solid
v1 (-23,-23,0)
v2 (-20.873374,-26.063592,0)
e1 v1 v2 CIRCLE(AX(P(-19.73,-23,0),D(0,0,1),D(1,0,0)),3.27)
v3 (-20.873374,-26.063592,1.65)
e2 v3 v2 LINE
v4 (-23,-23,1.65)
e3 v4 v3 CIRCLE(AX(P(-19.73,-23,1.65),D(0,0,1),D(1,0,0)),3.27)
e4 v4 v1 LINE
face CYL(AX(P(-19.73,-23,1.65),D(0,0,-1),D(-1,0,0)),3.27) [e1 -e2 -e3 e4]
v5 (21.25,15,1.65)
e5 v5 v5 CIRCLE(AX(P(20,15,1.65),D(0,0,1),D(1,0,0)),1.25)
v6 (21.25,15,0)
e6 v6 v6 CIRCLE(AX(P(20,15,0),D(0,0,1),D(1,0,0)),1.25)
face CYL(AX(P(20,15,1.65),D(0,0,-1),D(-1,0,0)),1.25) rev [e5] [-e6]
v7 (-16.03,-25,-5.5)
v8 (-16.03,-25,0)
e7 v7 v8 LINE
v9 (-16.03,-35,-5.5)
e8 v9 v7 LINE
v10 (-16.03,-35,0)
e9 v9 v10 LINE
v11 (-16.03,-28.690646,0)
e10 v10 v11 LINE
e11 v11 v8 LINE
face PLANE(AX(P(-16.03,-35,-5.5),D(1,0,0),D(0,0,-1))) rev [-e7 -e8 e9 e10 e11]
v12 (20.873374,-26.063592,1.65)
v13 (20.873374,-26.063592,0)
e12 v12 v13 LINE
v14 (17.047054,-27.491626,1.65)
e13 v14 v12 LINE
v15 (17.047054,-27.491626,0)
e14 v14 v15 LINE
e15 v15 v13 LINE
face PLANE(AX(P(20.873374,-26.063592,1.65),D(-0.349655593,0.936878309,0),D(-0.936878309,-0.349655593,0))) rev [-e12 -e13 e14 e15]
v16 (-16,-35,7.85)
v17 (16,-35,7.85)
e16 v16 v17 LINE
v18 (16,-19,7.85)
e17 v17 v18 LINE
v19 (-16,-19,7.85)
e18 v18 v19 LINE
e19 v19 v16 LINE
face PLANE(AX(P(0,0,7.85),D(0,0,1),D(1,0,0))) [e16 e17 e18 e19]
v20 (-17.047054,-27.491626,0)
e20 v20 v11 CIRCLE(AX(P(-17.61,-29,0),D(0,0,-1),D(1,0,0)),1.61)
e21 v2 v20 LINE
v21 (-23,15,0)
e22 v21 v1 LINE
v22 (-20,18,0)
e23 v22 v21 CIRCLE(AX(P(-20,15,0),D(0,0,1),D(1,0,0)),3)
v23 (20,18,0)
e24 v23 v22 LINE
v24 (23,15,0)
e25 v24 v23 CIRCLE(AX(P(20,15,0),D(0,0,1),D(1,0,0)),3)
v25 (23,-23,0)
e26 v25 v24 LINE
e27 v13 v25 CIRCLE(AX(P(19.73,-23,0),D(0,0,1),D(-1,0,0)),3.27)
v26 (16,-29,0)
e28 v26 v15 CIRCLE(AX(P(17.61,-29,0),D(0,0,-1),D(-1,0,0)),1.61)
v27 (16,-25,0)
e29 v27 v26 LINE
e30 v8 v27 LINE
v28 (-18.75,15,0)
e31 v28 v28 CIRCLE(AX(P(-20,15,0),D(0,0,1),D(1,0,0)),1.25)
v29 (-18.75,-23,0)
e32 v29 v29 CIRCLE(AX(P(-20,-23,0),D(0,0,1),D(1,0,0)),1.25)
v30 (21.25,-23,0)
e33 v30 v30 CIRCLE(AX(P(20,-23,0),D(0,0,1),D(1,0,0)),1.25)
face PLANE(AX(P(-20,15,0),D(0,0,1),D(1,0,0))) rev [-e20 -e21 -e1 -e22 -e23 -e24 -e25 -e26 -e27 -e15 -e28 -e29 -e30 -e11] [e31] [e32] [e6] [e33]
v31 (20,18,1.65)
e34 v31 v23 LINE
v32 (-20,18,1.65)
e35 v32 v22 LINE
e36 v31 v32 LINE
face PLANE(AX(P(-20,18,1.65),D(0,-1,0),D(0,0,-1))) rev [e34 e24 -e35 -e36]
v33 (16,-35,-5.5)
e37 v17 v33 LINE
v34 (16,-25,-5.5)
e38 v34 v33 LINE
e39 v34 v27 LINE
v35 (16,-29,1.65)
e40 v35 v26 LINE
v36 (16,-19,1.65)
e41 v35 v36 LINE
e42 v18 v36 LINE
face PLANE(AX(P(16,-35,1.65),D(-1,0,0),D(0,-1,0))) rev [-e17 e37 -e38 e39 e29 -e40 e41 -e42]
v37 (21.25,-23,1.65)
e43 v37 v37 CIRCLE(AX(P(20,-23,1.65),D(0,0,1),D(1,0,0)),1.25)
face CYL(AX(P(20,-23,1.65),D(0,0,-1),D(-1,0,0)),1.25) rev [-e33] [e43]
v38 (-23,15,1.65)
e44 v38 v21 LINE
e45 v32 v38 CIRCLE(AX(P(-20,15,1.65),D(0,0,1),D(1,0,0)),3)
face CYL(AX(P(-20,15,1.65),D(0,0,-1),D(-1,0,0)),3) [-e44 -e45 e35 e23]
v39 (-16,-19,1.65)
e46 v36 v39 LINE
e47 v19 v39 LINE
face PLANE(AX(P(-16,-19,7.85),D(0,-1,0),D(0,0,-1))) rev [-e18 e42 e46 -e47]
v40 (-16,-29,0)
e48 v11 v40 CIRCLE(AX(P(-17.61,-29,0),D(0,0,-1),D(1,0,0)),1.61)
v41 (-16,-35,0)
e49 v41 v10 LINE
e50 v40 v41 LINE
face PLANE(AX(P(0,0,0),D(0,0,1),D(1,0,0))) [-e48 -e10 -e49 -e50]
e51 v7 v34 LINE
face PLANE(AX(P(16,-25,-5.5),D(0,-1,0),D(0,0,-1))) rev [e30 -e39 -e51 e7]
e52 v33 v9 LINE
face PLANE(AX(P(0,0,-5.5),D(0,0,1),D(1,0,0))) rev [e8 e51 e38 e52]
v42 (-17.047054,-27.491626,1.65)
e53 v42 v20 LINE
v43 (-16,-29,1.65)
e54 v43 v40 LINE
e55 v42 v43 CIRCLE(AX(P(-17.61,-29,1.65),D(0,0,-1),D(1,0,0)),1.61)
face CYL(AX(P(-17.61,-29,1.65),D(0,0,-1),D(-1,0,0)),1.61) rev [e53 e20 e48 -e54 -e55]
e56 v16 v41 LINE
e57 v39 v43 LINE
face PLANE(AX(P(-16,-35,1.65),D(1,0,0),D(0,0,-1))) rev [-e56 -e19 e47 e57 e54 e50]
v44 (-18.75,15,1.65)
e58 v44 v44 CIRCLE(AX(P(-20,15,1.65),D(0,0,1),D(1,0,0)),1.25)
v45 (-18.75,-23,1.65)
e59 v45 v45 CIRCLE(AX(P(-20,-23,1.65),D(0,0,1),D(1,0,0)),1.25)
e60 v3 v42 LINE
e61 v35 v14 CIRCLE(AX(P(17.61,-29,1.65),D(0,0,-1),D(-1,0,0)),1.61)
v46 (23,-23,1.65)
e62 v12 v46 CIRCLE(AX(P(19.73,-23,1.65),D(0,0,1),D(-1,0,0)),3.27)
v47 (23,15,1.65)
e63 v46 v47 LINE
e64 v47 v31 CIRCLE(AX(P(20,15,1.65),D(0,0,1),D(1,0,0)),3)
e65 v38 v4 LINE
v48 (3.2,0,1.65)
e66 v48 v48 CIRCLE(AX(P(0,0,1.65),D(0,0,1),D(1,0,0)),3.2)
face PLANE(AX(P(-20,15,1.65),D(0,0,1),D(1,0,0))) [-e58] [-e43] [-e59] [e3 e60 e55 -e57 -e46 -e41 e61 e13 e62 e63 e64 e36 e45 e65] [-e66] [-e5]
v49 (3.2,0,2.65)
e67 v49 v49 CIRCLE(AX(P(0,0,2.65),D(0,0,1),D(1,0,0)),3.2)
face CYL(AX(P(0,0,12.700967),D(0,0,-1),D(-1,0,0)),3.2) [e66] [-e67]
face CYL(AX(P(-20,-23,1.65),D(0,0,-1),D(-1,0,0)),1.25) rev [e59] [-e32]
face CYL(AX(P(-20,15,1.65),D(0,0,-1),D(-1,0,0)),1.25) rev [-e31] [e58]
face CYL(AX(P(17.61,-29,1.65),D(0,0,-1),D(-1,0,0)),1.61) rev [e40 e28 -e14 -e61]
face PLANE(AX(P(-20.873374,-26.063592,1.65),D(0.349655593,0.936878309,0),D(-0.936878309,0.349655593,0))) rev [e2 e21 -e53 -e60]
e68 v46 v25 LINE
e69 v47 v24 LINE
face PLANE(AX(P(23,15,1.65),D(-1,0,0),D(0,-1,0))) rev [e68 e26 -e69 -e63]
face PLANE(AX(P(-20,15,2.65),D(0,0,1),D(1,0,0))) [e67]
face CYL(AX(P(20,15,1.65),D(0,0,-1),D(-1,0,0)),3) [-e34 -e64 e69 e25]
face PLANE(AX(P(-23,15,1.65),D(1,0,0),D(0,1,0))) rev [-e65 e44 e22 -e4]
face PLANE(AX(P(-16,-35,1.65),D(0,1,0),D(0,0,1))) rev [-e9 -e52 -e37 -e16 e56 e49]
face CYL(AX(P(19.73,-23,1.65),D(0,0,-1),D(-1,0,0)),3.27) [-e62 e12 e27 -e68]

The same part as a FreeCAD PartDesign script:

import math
import FreeCAD as App
import Part
import Sketcher

doc = App.newDocument("Part")
body = doc.addObject("PartDesign::Body", "Body")

sketch1 = doc.addObject("Sketcher::SketchObject", "Sketch")
body.addObject(sketch1)
sketch1.AttachmentSupport = (doc.XY_Plane, [""])
sketch1.MapMode = "FlatFace"
sketch1.addGeometry(Part.LineSegment(App.Vector(20, 18, 0), App.Vector(-20, 18, 0)), False)
sketch1.addGeometry(Part.ArcOfCircle(Part.Circle(App.Vector(-20, 15, 0), App.Vector(0, 0, 1), 3), math.radians(90), math.radians(180)), False)
sketch1.addGeometry(Part.LineSegment(App.Vector(-23, 15, 0), App.Vector(-23, -23, 0)), False)
sketch1.addGeometry(Part.ArcOfCircle(Part.Circle(App.Vector(-19.7, -23, 0), App.Vector(0, 0, 1), 3.3), math.radians(-180), math.radians(-110)), False)
sketch1.addGeometry(Part.LineSegment(App.Vector(-20.9, -26.1, 0), App.Vector(-17, -27.5, 0)), False)
sketch1.addGeometry(Part.ArcOfCircle(Part.Circle(App.Vector(-17.6, -29, 0), App.Vector(0, 0, 1), 1.6), math.radians(0), math.radians(70)), False)
sketch1.addGeometry(Part.LineSegment(App.Vector(-16, -29, 0), App.Vector(-16, -35, 0)), False)
sketch1.addGeometry(Part.LineSegment(App.Vector(-16, -35, 0), App.Vector(16, -35, 0)), False)
sketch1.addGeometry(Part.LineSegment(App.Vector(16, -35, 0), App.Vector(16, -29, 0)), False)
sketch1.addGeometry(Part.ArcOfCircle(Part.Circle(App.Vector(17.6, -29, 0), App.Vector(0, 0, 1), 1.6), math.radians(110), math.radians(180)), False)
sketch1.addGeometry(Part.LineSegment(App.Vector(17, -27.5, 0), App.Vector(20.9, -26.1, 0)), False)
sketch1.addGeometry(Part.ArcOfCircle(Part.Circle(App.Vector(19.7, -23, 0), App.Vector(0, 0, 1), 3.3), math.radians(-70), math.radians(0)), False)
sketch1.addGeometry(Part.LineSegment(App.Vector(23, -23, 0), App.Vector(23, 15, 0)), False)
sketch1.addGeometry(Part.ArcOfCircle(Part.Circle(App.Vector(20, 15, 0), App.Vector(0, 0, 1), 3), math.radians(0), math.radians(90)), False)
sketch1.addGeometry(Part.Circle(App.Vector(20, -23, 0), App.Vector(0, 0, 1), 1.2), False)
sketch1.addGeometry(Part.Circle(App.Vector(-20, -23, 0), App.Vector(0, 0, 1), 1.2), False)
sketch1.addGeometry(Part.Circle(App.Vector(20, 15, 0), App.Vector(0, 0, 1), 1.2), False)
sketch1.addGeometry(Part.Circle(App.Vector(0, 0, 0), App.Vector(0, 0, 1), 3.2), False)
sketch1.addGeometry(Part.Circle(App.Vector(-20, 15, 0), App.Vector(0, 0, 1), 1.2), False)
sketch1.addConstraint(Sketcher.Constraint("Tangent", 0, 2, 1, 1))
sketch1.addConstraint(Sketcher.Constraint("Tangent", 1, 2, 2, 1))
sketch1.addConstraint(Sketcher.Constraint("Tangent", 2, 2, 3, 1))
sketch1.addConstraint(Sketcher.Constraint("Tangent", 3, 2, 4, 1))
sketch1.addConstraint(Sketcher.Constraint("Tangent", 4, 2, 5, 2))
sketch1.addConstraint(Sketcher.Constraint("Tangent", 5, 1, 6, 1))
sketch1.addConstraint(Sketcher.Constraint("Coincident", 6, 2, 7, 1))
sketch1.addConstraint(Sketcher.Constraint("Coincident", 7, 2, 8, 1))
sketch1.addConstraint(Sketcher.Constraint("Tangent", 8, 2, 9, 2))
sketch1.addConstraint(Sketcher.Constraint("Tangent", 9, 1, 10, 1))
sketch1.addConstraint(Sketcher.Constraint("Tangent", 10, 2, 11, 1))
sketch1.addConstraint(Sketcher.Constraint("Tangent", 11, 2, 12, 1))
sketch1.addConstraint(Sketcher.Constraint("Tangent", 12, 2, 13, 1))
sketch1.addConstraint(Sketcher.Constraint("Tangent", 13, 2, 0, 1))
sketch1.addConstraint(Sketcher.Constraint("Horizontal", 0))
sketch1.addConstraint(Sketcher.Constraint("Vertical", 2))
sketch1.addConstraint(Sketcher.Constraint("Vertical", 6))
sketch1.addConstraint(Sketcher.Constraint("Horizontal", 7))
sketch1.addConstraint(Sketcher.Constraint("Vertical", 8))
sketch1.addConstraint(Sketcher.Constraint("Vertical", 12))
sketch1.addConstraint(Sketcher.Constraint("Coincident", 17, 3, -1, 1))
sketch1.addConstraint(Sketcher.Constraint("Coincident", 16, 3, 13, 3))
sketch1.addConstraint(Sketcher.Constraint("Coincident", 18, 3, 1, 3))
sketch1.addConstraint(Sketcher.Constraint("Equal", 5, 9))
sketch1.addConstraint(Sketcher.Constraint("Equal", 3, 11))
sketch1.addConstraint(Sketcher.Constraint("Equal", 1, 13))
sketch1.addConstraint(Sketcher.Constraint("Equal", 14, 15))
sketch1.addConstraint(Sketcher.Constraint("Equal", 15, 16))
sketch1.addConstraint(Sketcher.Constraint("Equal", 16, 18))
sketch1.addConstraint(Sketcher.Constraint("Symmetric", 5, 3, 9, 3, -2))
sketch1.addConstraint(Sketcher.Constraint("Symmetric", 3, 3, 11, 3, -2))
sketch1.addConstraint(Sketcher.Constraint("Symmetric", 14, 3, 15, 3, -2))
sketch1.addConstraint(Sketcher.Constraint("Horizontal", 11, 3, 14, 3))
sketch1.addConstraint(Sketcher.Constraint("Vertical", 13, 3, 14, 3))
sketch1.addConstraint(Sketcher.Constraint("Radius", 1, 3.0))
sketch1.addConstraint(Sketcher.Constraint("Diameter", 14, 2.5))
sketch1.addConstraint(Sketcher.Constraint("Diameter", 17, 6.4))
sketch1.addConstraint(Sketcher.Constraint("DistanceX", 0, 2, 0, 1, 40.0))
sketch1.addConstraint(Sketcher.Constraint("DistanceX", 7, 1, 7, 2, 32.0))
sketch1.addConstraint(Sketcher.Constraint("DistanceY", 2, 2, 2, 1, 38.0))
sketch1.addConstraint(Sketcher.Constraint("DistanceY", 6, 2, 6, 1, 6.0))
sketch1.addConstraint(Sketcher.Constraint("Radius", 3, 3.27))
sketch1.addConstraint(Sketcher.Constraint("Radius", 5, 1.61))
sketch1.addConstraint(Sketcher.Constraint("DistanceY", -1, 1, 1, 3, 15.0))
sketch1.addConstraint(Sketcher.Constraint("DistanceY", 5, 3, -1, 1, 29.0))
pad1 = doc.addObject("PartDesign::Pad", "Pad")
body.addObject(pad1)
pad1.Profile = sketch1
pad1.Length = 1.65

sketch2 = doc.addObject("Sketcher::SketchObject", "Sketch001")
body.addObject(sketch2)
sketch2.AttachmentSupport = (doc.XY_Plane, [""])
sketch2.MapMode = "FlatFace"
sketch2.AttachmentOffset = App.Placement(App.Vector(0, 0, 1.65), App.Rotation())
sketch2.addGeometry(Part.LineSegment(App.Vector(-16, -19, 0), App.Vector(-16, -35, 0)), False)
sketch2.addGeometry(Part.LineSegment(App.Vector(-16, -35, 0), App.Vector(16, -35, 0)), False)
sketch2.addGeometry(Part.LineSegment(App.Vector(16, -35, 0), App.Vector(16, -19, 0)), False)
sketch2.addGeometry(Part.LineSegment(App.Vector(16, -19, 0), App.Vector(-16, -19, 0)), False)
sketch2.addConstraint(Sketcher.Constraint("Coincident", 0, 2, 1, 1))
sketch2.addConstraint(Sketcher.Constraint("Coincident", 1, 2, 2, 1))
sketch2.addConstraint(Sketcher.Constraint("Coincident", 2, 2, 3, 1))
sketch2.addConstraint(Sketcher.Constraint("Coincident", 3, 2, 0, 1))
sketch2.addConstraint(Sketcher.Constraint("Vertical", 0))
sketch2.addConstraint(Sketcher.Constraint("Horizontal", 1))
sketch2.addConstraint(Sketcher.Constraint("Vertical", 2))
sketch2.addConstraint(Sketcher.Constraint("Horizontal", 3))
sketch2.addConstraint(Sketcher.Constraint("DistanceX", 1, 1, 1, 2, 32.0))
sketch2.addConstraint(Sketcher.Constraint("DistanceY", 0, 2, 0, 1, 16.0))
sketch2.addConstraint(Sketcher.Constraint("DistanceX", 0, 2, -1, 1, 16.0))
sketch2.addConstraint(Sketcher.Constraint("DistanceY", 0, 2, -1, 1, 35.0))
pad2 = doc.addObject("PartDesign::Pad", "Pad001")
body.addObject(pad2)
pad2.Profile = sketch2
pad2.Length = 6.2

sketch3 = doc.addObject("Sketcher::SketchObject", "Sketch002")
body.addObject(sketch3)
sketch3.AttachmentSupport = (doc.XY_Plane, [""])
sketch3.MapMode = "FlatFace"
sketch3.addGeometry(Part.Circle(App.Vector(0, 0, 0), App.Vector(0, 0, 1), 3.2), False)
sketch3.addConstraint(Sketcher.Constraint("Coincident", 0, 3, -1, 1))
sketch3.addConstraint(Sketcher.Constraint("Diameter", 0, 6.4))
pad3 = doc.addObject("PartDesign::Pad", "Pad002")
body.addObject(pad3)
pad3.Profile = sketch3
pad3.Length = 2.65

sketch4 = doc.addObject("Sketcher::SketchObject", "Sketch003")
body.addObject(sketch4)
sketch4.AttachmentSupport = (doc.XY_Plane, [""])
sketch4.MapMode = "FlatFace"
sketch4.addGeometry(Part.LineSegment(App.Vector(16, -25, 0), App.Vector(16, -35, 0)), False)
sketch4.addGeometry(Part.LineSegment(App.Vector(16, -35, 0), App.Vector(-16, -35, 0)), False)
sketch4.addGeometry(Part.LineSegment(App.Vector(-16, -35, 0), App.Vector(-16, -25, 0)), False)
sketch4.addGeometry(Part.LineSegment(App.Vector(-16, -25, 0), App.Vector(16, -25, 0)), False)
sketch4.addConstraint(Sketcher.Constraint("Coincident", 0, 2, 1, 1))
sketch4.addConstraint(Sketcher.Constraint("Coincident", 1, 2, 2, 1))
sketch4.addConstraint(Sketcher.Constraint("Coincident", 2, 2, 3, 1))
sketch4.addConstraint(Sketcher.Constraint("Coincident", 3, 2, 0, 1))
sketch4.addConstraint(Sketcher.Constraint("Vertical", 0))
sketch4.addConstraint(Sketcher.Constraint("Horizontal", 1))
sketch4.addConstraint(Sketcher.Constraint("Vertical", 2))
sketch4.addConstraint(Sketcher.Constraint("Horizontal", 3))
sketch4.addConstraint(Sketcher.Constraint("DistanceY", 0, 2, 0, 1, 10.0))
sketch4.addConstraint(Sketcher.Constraint("DistanceX", -1, 1, 0, 2, 16.0))
sketch4.addConstraint(Sketcher.Constraint("DistanceY", 0, 2, -1, 1, 35.0))
sketch4.addConstraint(Sketcher.Constraint("DistanceX", 1, 2, 1, 1, 32.03))
pad4 = doc.addObject("PartDesign::Pad", "Pad003")
body.addObject(pad4)
pad4.Profile = sketch4
pad4.Length = 5.5
pad4.Reversed = True

doc.recompute()
